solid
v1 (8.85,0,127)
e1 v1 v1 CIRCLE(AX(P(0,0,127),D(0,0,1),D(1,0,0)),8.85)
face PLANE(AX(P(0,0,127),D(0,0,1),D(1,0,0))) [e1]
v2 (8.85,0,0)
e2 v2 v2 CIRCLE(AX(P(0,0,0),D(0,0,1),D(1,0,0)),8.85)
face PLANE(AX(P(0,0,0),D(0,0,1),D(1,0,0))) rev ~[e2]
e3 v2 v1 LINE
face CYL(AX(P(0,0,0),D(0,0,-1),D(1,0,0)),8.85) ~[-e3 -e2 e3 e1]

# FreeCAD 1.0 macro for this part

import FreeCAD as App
import Part
import Sketcher
from FreeCAD import Vector

doc = App.newDocument("Part")
body = doc.addObject("PartDesign::Body", "Body")

# Sketch on XY plane
sketch1 = body.newObject("Sketcher::SketchObject", "Sketch")
sketch1.AttachmentSupport = (doc.getObject("XY_Plane"), [""])
sketch1.MapMode = "FlatFace"
sketch1.addGeometry(Part.Circle(Vector(0, 0, 0), Vector(0, 0, 1), 8.85), False)
sketch1.addConstraint(Sketcher.Constraint("Coincident", 0, 3, -1, 1))
sketch1.addConstraint(Sketcher.Constraint("Diameter", 0, 17.7))
pad1 = body.newObject("PartDesign::Pad", "Pad")
pad1.Profile = sketch1
pad1.Length = 127

doc.recompute()
